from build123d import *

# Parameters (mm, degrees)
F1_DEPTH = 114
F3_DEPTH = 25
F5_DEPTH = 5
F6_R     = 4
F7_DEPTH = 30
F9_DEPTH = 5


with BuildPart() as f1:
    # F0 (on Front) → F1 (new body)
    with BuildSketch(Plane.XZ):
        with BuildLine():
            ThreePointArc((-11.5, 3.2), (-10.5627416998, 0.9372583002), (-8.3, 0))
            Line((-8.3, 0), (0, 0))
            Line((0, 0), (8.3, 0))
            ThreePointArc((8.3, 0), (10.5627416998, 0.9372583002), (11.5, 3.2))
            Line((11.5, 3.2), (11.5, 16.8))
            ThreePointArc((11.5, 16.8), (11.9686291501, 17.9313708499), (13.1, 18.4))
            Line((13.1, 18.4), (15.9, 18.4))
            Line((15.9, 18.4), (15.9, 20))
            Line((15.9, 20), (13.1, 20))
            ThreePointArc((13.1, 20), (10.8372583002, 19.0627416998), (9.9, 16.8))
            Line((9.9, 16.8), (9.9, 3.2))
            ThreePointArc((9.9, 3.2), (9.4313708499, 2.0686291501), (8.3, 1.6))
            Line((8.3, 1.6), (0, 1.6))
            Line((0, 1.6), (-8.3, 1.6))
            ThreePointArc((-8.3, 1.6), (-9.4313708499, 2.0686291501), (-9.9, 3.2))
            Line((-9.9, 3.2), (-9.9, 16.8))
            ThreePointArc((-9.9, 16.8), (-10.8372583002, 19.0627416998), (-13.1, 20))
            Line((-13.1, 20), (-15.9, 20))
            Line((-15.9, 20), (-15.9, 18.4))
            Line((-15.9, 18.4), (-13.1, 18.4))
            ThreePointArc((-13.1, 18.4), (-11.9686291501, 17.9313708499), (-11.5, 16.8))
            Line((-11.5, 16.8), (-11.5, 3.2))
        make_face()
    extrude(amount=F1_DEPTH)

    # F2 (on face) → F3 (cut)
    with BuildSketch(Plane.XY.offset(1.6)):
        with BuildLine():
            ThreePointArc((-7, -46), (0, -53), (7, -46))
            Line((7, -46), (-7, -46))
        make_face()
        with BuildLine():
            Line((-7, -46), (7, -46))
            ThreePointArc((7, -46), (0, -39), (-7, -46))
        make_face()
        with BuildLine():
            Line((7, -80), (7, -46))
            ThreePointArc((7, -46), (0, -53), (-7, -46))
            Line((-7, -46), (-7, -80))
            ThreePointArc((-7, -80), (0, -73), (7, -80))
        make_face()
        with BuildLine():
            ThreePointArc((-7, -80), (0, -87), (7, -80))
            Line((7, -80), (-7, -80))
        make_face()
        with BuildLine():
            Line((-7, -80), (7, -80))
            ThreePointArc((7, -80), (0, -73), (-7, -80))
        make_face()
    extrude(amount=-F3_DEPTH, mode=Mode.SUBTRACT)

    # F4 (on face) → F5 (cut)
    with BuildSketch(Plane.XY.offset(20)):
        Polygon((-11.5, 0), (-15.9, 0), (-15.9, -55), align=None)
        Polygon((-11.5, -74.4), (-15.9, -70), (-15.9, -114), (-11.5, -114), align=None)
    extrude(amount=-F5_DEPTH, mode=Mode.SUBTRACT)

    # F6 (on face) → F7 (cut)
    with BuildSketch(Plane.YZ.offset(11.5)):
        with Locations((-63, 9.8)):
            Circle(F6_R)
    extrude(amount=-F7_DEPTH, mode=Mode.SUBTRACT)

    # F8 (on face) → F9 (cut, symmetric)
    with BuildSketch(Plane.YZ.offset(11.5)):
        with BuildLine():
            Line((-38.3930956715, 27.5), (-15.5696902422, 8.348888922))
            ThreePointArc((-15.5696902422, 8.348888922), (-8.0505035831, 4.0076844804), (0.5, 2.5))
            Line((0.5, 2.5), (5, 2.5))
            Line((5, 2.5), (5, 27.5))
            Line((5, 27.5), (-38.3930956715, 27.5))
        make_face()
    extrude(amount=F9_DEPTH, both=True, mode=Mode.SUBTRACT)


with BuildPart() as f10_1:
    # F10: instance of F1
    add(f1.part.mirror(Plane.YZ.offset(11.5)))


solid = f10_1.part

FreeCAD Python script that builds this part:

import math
import FreeCAD as App
import Part
import Sketcher
Q = App.Units.Quantity


def add_polygon(sketch, points):
    """Adds a closed chain of lines whose ends are joined by coincident constraints."""
    first, n = sketch.GeometryCount, len(points)
    for a, b in zip(points, points[1:] + points[:1]):
        sketch.addGeometry(Part.LineSegment(App.Vector(*a, 0), App.Vector(*b, 0)), False)
    for i in range(n):
        sketch.addConstraint(Sketcher.Constraint("Coincident", first + i, 2, first + (i + 1) % n, 1))

doc = App.newDocument("Part")
body = doc.addObject("PartDesign::Body", "Body")

sketch1 = body.newObject("Sketcher::SketchObject", "Sketch")
sketch1.AttachmentSupport = (doc.getObject("XZ_Plane"), [""])
sketch1.MapMode = "FlatFace"
sketch1.addGeometry([
    Part.ArcOfCircle(Part.Circle(App.Vector(-8.3, 3.2, 0), App.Vector(0, 0, 1), 3.2), math.radians(180), math.radians(270)),
    Part.LineSegment(App.Vector(-8.3, 0, 0), App.Vector(8.3, 0, 0)),
    Part.ArcOfCircle(Part.Circle(App.Vector(8.3, 3.2, 0), App.Vector(0, 0, 1), 3.2), math.radians(-90), math.radians(0)),
    Part.LineSegment(App.Vector(11.5, 3.2, 0), App.Vector(11.5, 16.8, 0)),
    Part.ArcOfCircle(Part.Circle(App.Vector(13.1, 16.8, 0), App.Vector(0, 0, 1), 1.6), math.radians(90), math.radians(180)),
    Part.LineSegment(App.Vector(13.1, 18.4, 0), App.Vector(15.9, 18.4, 0)),
    Part.LineSegment(App.Vector(15.9, 18.4, 0), App.Vector(15.9, 20, 0)),
    Part.LineSegment(App.Vector(15.9, 20, 0), App.Vector(13.1, 20, 0)),
    Part.ArcOfCircle(Part.Circle(App.Vector(13.1, 16.8, 0), App.Vector(0, 0, 1), 3.2), math.radians(90), math.radians(180)),
    Part.LineSegment(App.Vector(9.9, 16.8, 0), App.Vector(9.9, 3.2, 0)),
    Part.ArcOfCircle(Part.Circle(App.Vector(8.3, 3.2, 0), App.Vector(0, 0, 1), 1.6), math.radians(-90), math.radians(0)),
    Part.LineSegment(App.Vector(8.3, 1.6, 0), App.Vector(-8.3, 1.6, 0)),
    Part.ArcOfCircle(Part.Circle(App.Vector(-8.3, 3.2, 0), App.Vector(0, 0, 1), 1.6), math.radians(180), math.radians(270)),
    Part.LineSegment(App.Vector(-9.9, 3.2, 0), App.Vector(-9.9, 16.8, 0)),
    Part.ArcOfCircle(Part.Circle(App.Vector(-13.1, 16.8, 0), App.Vector(0, 0, 1), 3.2), math.radians(0), math.radians(90)),
    Part.LineSegment(App.Vector(-13.1, 20, 0), App.Vector(-15.9, 20, 0)),
    Part.LineSegment(App.Vector(-15.9, 20, 0), App.Vector(-15.9, 18.4, 0)),
    Part.LineSegment(App.Vector(-15.9, 18.4, 0), App.Vector(-13.1, 18.4, 0)),
    Part.ArcOfCircle(Part.Circle(App.Vector(-13.1, 16.8, 0), App.Vector(0, 0, 1), 1.6), math.radians(0), math.radians(90)),
    Part.LineSegment(App.Vector(-11.5, 16.8, 0), App.Vector(-11.5, 3.2, 0)),
], False)
sketch1.addConstraint([
    Sketcher.Constraint("Tangent", 0, 2, 1, 1),
    Sketcher.Constraint("Tangent", 1, 2, 2, 1),
    Sketcher.Constraint("Tangent", 2, 2, 3, 1),
    Sketcher.Constraint("Tangent", 3, 2, 4, 2),
    Sketcher.Constraint("Tangent", 4, 1, 5, 1),
    Sketcher.Constraint("Coincident", 5, 2, 6, 1),
    Sketcher.Constraint("Coincident", 6, 2, 7, 1),
    Sketcher.Constraint("Tangent", 7, 2, 8, 1),
    Sketcher.Constraint("Tangent", 8, 2, 9, 1),
    Sketcher.Constraint("Tangent", 9, 2, 10, 2),
    Sketcher.Constraint("Tangent", 10, 1, 11, 1),
    Sketcher.Constraint("Tangent", 11, 2, 12, 2),
    Sketcher.Constraint("Tangent", 12, 1, 13, 1),
    Sketcher.Constraint("Tangent", 13, 2, 14, 1),
    Sketcher.Constraint("Tangent", 14, 2, 15, 1),
    Sketcher.Constraint("Coincident", 15, 2, 16, 1),
    Sketcher.Constraint("Coincident", 16, 2, 17, 1),
    Sketcher.Constraint("Tangent", 17, 2, 18, 2),
    Sketcher.Constraint("Tangent", 18, 1, 19, 1),
    Sketcher.Constraint("Tangent", 19, 2, 0, 1),
    Sketcher.Constraint("Horizontal", 1),
    Sketcher.Constraint("Vertical", 3),
    Sketcher.Constraint("Horizontal", 5),
    Sketcher.Constraint("Vertical", 6),
    Sketcher.Constraint("Horizontal", 7),
    Sketcher.Constraint("Vertical", 9),
    Sketcher.Constraint("Horizontal", 11),
    Sketcher.Constraint("Vertical", 13),
    Sketcher.Constraint("Horizontal", 15),
    Sketcher.Constraint("Vertical", 16),
    Sketcher.Constraint("Horizontal", 17),
    Sketcher.Constraint("Vertical", 19),
    Sketcher.Constraint("Coincident", 8, 3, 4, 3),
    Sketcher.Constraint("Coincident", 10, 3, 2, 3),
    Sketcher.Constraint("Coincident", 12, 3, 0, 3),
    Sketcher.Constraint("Coincident", 18, 3, 14, 3),
    Sketcher.Constraint("Equal", 0, 2),
    Sketcher.Constraint("Equal", 2, 8),
    Sketcher.Constraint("Equal", 8, 14),
    Sketcher.Constraint("Symmetric", 0, 2, 1, 2, -1, 1),
    Sketcher.Constraint("Symmetric", 6, 2, 15, 2, -2),
    Sketcher.Constraint("Radius", 0, 3.2),
    Sketcher.Constraint("Radius", 4, 1.6),
    Sketcher.Constraint("DistanceX", 1, 1, 1, 2, 16.6),
    Sketcher.Constraint("DistanceX", 5, 1, 5, 2, 2.8),
    Sketcher.Constraint("DistanceY", 3, 1, 3, 2, 13.6),
])
pad1 = body.newObject("PartDesign::Pad", "Pad")
pad1.Profile = sketch1
pad1.Length = 114

sketch2 = body.newObject("Sketcher::SketchObject", "Sketch001")
sketch2.AttachmentSupport = (doc.getObject("XY_Plane"), [""])
sketch2.MapMode = "FlatFace"
sketch2.AttachmentOffset = App.Placement(App.Vector(0, 0, 1.6), App.Rotation())
sketch2.addGeometry([
    Part.ArcOfCircle(Part.Circle(App.Vector(0, -46, 0), App.Vector(0, 0, 1), 7), math.radians(0), math.radians(180)),
    Part.LineSegment(App.Vector(-7, -46, 0), App.Vector(-7, -80, 0)),
    Part.ArcOfCircle(Part.Circle(App.Vector(0, -80, 0), App.Vector(0, 0, 1), 7), math.radians(180), math.radians(360)),
    Part.LineSegment(App.Vector(7, -80, 0), App.Vector(7, -46, 0)),
], False)
sketch2.addConstraint([
    Sketcher.Constraint("Tangent", 0, 2, 1, 1),
    Sketcher.Constraint("Tangent", 1, 2, 2, 1),
    Sketcher.Constraint("Tangent", 2, 2, 3, 1),
    Sketcher.Constraint("Tangent", 3, 2, 0, 1),
    Sketcher.Constraint("Vertical", 1),
    Sketcher.Constraint("Vertical", 3),
    Sketcher.Constraint("PointOnObject", 0, 3, -2),
    Sketcher.Constraint("Radius", 0, 7.0),
    Sketcher.Constraint("DistanceY", 1, 2, 1, 1, 34.0),
    Sketcher.Constraint("DistanceY", 0, 3, -1, 1, 46.0),
])
pocket1 = body.newObject("PartDesign::Pocket", "Pocket")
pocket1.Profile = sketch2
pocket1.Length = 25

sketch3 = body.newObject("Sketcher::SketchObject", "Sketch002")
sketch3.AttachmentSupport = (doc.getObject("XY_Plane"), [""])
sketch3.MapMode = "FlatFace"
sketch3.AttachmentOffset = App.Placement(App.Vector(0, 0, 20), App.Rotation())
add_polygon(sketch3, [(-11.5, 0), (-15.9, 0), (-15.9, -55)])
add_polygon(sketch3, [(-11.5, -74.4), (-15.9, -70), (-15.9, -114), (-11.5, -114)])
sketch3.addConstraint([
    Sketcher.Constraint("Horizontal", 0),
    Sketcher.Constraint("Vertical", 1),
    Sketcher.Constraint("Vertical", 4),
    Sketcher.Constraint("Horizontal", 5),
    Sketcher.Constraint("Vertical", 6),
    Sketcher.Constraint("PointOnObject", 0, 2, -1),
    Sketcher.Constraint("Vertical", 1, 2, 3, 2),
    Sketcher.Constraint("Vertical", 2, 2, 5, 2),
    Sketcher.Constraint("DistanceY", 1, 2, 1, 1, 55.0),
    Sketcher.Constraint("DistanceY", 4, 2, 4, 1, 44.0),
    Sketcher.Constraint("Angle", 3, Q("135 deg")),
    Sketcher.Constraint("DistanceX", 0, 2, 0, 1, 4.4),
    Sketcher.Constraint("DistanceY", 3, 2, -1, 1, 70.0),
    Sketcher.Constraint("DistanceX", 0, 2, -1, 1, 15.9),
])
pocket2 = body.newObject("PartDesign::Pocket", "Pocket001")
pocket2.Profile = sketch3
pocket2.Length = 5

sketch4 = body.newObject("Sketcher::SketchObject", "Sketch003")
sketch4.AttachmentSupport = (doc.getObject("YZ_Plane"), [""])
sketch4.MapMode = "FlatFace"
sketch4.AttachmentOffset = App.Placement(App.Vector(0, 0, 11.5), App.Rotation())
sketch4.addGeometry(Part.Circle(App.Vector(-63, 9.8, 0), App.Vector(0, 0, 1), 4), False)
sketch4.addConstraint([
    Sketcher.Constraint("Diameter", 0, 8.0),
    Sketcher.Constraint("DistanceX", 0, 3, -1, 1, 63.0),
    Sketcher.Constraint("DistanceY", -1, 1, 0, 3, 9.8),
])
pocket3 = body.newObject("PartDesign::Pocket", "Pocket002")
pocket3.Profile = sketch4
pocket3.Length = 30

sketch5 = body.newObject("Sketcher::SketchObject", "Sketch004")
sketch5.AttachmentSupport = (doc.getObject("YZ_Plane"), [""])
sketch5.MapMode = "FlatFace"
sketch5.AttachmentOffset = App.Placement(App.Vector(0, 0, 11.5), App.Rotation())
sketch5.addGeometry([
    Part.LineSegment(App.Vector(-38.4, 27.5, 0), App.Vector(-15.6, 8.3, 0)),
    Part.ArcOfCircle(Part.Circle(App.Vector(0.5, 27.5, 0), App.Vector(0, 0, 1), 25), math.radians(-130), math.radians(-90)),
    Part.LineSegment(App.Vector(0.5, 2.5, 0), App.Vector(5, 2.5, 0)),
    Part.LineSegment(App.Vector(5, 2.5, 0), App.Vector(5, 27.5, 0)),
    Part.LineSegment(App.Vector(5, 27.5, 0), App.Vector(-38.4, 27.5, 0)),
], False)
sketch5.addConstraint([
    Sketcher.Constraint("Tangent", 0, 2, 1, 1),
    Sketcher.Constraint("Tangent", 1, 2, 2, 1),
    Sketcher.Constraint("Coincident", 2, 2, 3, 1),
    Sketcher.Constraint("Coincident", 3, 2, 4, 1),
    Sketcher.Constraint("Coincident", 4, 2, 0, 1),
    Sketcher.Constraint("Horizontal", 2),
    Sketcher.Constraint("Vertical", 3),
    Sketcher.Constraint("Horizontal", 4),
    Sketcher.Constraint("Horizontal", 1, 3, 3, 2),
    Sketcher.Constraint("Radius", 1, 25.0),
    Sketcher.Constraint("Angle", 0, Q("-40 deg")),
    Sketcher.Constraint("DistanceX", 2, 1, 2, 2, 4.5),
    Sketcher.Constraint("DistanceX", -1, 1, 2, 2, 5.0),
    Sketcher.Constraint("DistanceY", -1, 1, 1, 3, 27.5),
])
pocket4 = body.newObject("PartDesign::Pocket", "Pocket003")
pocket4.Profile = sketch5
pocket4.Length = 10
pocket4.Midplane = True
body2 = doc.addObject("PartDesign::Body", "Body001")
doc.recompute()

mirroring = doc.addObject("Part::Mirroring", "Mirroring")
mirroring.Source = body
mirroring.Base = App.Vector(11.5, 0, 0)
mirroring.Normal = App.Vector(1, 0, 0)
body2.BaseFeature = mirroring
doc.recompute()
body.Visibility = False
mirroring.Visibility = False

doc.recompute()
